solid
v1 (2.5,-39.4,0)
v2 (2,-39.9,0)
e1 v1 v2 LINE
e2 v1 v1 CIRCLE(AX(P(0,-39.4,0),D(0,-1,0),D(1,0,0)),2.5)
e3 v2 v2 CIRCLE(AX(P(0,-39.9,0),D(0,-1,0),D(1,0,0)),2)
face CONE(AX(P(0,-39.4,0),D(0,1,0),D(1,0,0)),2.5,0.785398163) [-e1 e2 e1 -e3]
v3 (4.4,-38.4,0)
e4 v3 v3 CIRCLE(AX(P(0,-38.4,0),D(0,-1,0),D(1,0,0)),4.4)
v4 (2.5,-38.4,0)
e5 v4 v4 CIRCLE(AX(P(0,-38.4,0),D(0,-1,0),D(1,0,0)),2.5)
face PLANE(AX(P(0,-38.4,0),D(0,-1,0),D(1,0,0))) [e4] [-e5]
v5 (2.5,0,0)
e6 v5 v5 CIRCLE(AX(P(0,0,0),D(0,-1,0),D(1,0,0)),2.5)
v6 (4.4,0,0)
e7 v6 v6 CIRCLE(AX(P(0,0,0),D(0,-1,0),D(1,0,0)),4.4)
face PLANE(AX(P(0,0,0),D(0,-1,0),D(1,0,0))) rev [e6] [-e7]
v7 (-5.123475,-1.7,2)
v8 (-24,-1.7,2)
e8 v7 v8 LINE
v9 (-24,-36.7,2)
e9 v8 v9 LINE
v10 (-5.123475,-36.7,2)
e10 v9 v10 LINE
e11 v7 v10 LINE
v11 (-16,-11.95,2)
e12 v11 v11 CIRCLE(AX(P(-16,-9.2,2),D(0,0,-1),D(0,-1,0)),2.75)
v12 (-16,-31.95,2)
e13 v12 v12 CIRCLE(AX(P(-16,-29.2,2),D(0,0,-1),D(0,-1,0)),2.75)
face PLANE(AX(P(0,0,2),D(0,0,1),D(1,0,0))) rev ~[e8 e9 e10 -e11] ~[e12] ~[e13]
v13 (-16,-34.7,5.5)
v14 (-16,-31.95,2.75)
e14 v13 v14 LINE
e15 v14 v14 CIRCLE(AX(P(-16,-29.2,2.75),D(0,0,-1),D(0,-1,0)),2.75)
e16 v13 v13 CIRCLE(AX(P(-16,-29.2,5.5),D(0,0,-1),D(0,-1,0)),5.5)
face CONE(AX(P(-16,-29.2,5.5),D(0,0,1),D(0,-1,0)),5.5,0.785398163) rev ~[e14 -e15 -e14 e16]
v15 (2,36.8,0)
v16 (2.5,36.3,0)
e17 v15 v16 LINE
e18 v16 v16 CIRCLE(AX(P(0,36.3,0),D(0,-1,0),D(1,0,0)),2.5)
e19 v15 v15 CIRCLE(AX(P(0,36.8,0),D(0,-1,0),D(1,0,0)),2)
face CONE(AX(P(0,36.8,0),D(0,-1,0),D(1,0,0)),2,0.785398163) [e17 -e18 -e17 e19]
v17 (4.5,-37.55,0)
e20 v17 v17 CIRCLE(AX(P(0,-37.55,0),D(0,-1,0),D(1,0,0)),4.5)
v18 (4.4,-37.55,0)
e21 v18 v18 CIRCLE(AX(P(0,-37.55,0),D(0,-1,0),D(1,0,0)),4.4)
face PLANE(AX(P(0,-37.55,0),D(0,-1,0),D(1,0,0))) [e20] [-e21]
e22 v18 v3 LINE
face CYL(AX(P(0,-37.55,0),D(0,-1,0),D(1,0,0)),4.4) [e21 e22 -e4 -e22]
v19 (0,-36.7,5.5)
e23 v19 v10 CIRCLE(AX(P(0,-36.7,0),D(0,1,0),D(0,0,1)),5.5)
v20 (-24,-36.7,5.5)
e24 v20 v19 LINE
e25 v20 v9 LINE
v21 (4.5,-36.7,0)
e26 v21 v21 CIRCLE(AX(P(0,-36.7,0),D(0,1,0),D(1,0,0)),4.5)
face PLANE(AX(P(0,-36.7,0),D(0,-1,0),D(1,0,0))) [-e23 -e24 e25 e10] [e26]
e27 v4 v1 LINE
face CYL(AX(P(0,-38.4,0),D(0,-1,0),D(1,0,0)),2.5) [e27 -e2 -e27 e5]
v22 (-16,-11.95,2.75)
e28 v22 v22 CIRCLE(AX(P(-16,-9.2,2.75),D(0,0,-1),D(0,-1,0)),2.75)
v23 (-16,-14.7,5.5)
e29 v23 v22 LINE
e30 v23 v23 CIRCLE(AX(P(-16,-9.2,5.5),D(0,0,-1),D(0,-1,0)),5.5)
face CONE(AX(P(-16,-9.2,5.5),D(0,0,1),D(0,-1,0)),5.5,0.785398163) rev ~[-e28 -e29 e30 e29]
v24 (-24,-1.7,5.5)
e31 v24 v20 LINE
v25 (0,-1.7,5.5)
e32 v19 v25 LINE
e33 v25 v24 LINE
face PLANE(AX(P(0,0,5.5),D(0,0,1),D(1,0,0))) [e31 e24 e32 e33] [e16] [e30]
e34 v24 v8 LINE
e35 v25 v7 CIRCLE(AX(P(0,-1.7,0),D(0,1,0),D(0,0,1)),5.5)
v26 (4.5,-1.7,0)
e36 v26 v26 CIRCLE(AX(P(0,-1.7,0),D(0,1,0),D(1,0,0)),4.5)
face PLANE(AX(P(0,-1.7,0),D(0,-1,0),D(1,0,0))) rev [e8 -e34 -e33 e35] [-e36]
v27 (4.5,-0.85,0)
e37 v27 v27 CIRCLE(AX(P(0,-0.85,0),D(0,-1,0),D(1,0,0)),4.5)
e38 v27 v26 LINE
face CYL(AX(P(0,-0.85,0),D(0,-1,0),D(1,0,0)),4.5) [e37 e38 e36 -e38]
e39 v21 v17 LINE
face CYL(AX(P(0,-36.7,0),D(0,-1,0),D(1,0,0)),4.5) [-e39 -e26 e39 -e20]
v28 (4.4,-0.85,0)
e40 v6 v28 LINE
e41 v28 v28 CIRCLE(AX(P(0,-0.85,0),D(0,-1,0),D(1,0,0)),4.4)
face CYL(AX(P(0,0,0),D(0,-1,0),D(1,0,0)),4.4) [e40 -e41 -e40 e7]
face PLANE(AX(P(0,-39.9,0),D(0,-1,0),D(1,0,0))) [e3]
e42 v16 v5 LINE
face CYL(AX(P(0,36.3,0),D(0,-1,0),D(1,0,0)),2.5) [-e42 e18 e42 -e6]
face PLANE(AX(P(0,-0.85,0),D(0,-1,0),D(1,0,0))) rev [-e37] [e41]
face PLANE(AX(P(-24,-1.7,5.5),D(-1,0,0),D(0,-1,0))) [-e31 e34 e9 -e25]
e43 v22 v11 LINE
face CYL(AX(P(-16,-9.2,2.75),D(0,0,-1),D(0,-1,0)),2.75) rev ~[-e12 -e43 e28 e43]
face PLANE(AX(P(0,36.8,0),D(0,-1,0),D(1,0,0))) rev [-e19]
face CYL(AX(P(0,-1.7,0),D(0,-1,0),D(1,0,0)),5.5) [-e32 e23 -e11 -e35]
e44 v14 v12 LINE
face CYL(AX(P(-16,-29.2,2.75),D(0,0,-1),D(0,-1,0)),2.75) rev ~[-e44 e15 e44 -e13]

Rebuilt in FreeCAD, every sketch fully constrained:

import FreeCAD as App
import Part
import Sketcher
from FreeCAD import Vector

doc = App.newDocument("Part")
body = doc.addObject("PartDesign::Body", "Body")

sketch1 = body.newObject("Sketcher::SketchObject", "Sketch")
sketch1.AttachmentSupport = (doc.getObject("XY_Plane"), [""])
sketch1.MapMode = "FlatFace"
sketch1.addGeometry([
    Part.LineSegment(Vector(0, 36.8, 0), Vector(0, -39.9, 0)),
    Part.LineSegment(Vector(0, -39.9, 0), Vector(2, -39.9, 0)),
    Part.LineSegment(Vector(2, -39.9, 0), Vector(2.5, -39.4, 0)),
    Part.LineSegment(Vector(2.5, -39.4, 0), Vector(2.5, -38.4, 0)),
    Part.LineSegment(Vector(2.5, -38.4, 0), Vector(4.4, -38.4, 0)),
    Part.LineSegment(Vector(4.4, -38.4, 0), Vector(4.4, -37.55, 0)),
    Part.LineSegment(Vector(4.4, -37.55, 0), Vector(4.5, -37.55, 0)),
    Part.LineSegment(Vector(4.5, -37.55, 0), Vector(4.5, -36.7, 0)),
    Part.LineSegment(Vector(4.5, -36.7, 0), Vector(5.5, -36.7, 0)),
    Part.LineSegment(Vector(5.5, -36.7, 0), Vector(5.5, -1.7, 0)),
    Part.LineSegment(Vector(5.5, -1.7, 0), Vector(4.5, -1.7, 0)),
    Part.LineSegment(Vector(4.5, -1.7, 0), Vector(4.5, -0.85, 0)),
    Part.LineSegment(Vector(4.5, -0.85, 0), Vector(4.4, -0.85, 0)),
    Part.LineSegment(Vector(4.4, -0.85, 0), Vector(4.4, 0, 0)),
    Part.LineSegment(Vector(4.4, 0, 0), Vector(2.5, 0, 0)),
    Part.LineSegment(Vector(2.5, 0, 0), Vector(2.5, 36.3, 0)),
    Part.LineSegment(Vector(2.5, 36.3, 0), Vector(2, 36.8, 0)),
    Part.LineSegment(Vector(2, 36.8, 0), Vector(0, 36.8, 0)),
], False)
sketch1.addConstraint([
    Sketcher.Constraint("Coincident", 0, 2, 1, 1),
    Sketcher.Constraint("Coincident", 1, 2, 2, 1),
    Sketcher.Constraint("Coincident", 2, 2, 3, 1),
    Sketcher.Constraint("Coincident", 3, 2, 4, 1),
    Sketcher.Constraint("Coincident", 4, 2, 5, 1),
    Sketcher.Constraint("Coincident", 5, 2, 6, 1),
    Sketcher.Constraint("Coincident", 6, 2, 7, 1),
    Sketcher.Constraint("Coincident", 7, 2, 8, 1),
    Sketcher.Constraint("Coincident", 8, 2, 9, 1),
    Sketcher.Constraint("Coincident", 9, 2, 10, 1),
    Sketcher.Constraint("Coincident", 10, 2, 11, 1),
    Sketcher.Constraint("Coincident", 11, 2, 12, 1),
    Sketcher.Constraint("Coincident", 12, 2, 13, 1),
    Sketcher.Constraint("Coincident", 13, 2, 14, 1),
    Sketcher.Constraint("Coincident", 14, 2, 15, 1),
    Sketcher.Constraint("Coincident", 15, 2, 16, 1),
    Sketcher.Constraint("Coincident", 16, 2, 17, 1),
    Sketcher.Constraint("Coincident", 17, 2, 0, 1),
    Sketcher.Constraint("Vertical", 0),
    Sketcher.Constraint("Horizontal", 1),
    Sketcher.Constraint("Vertical", 3),
    Sketcher.Constraint("Horizontal", 4),
    Sketcher.Constraint("Vertical", 5),
    Sketcher.Constraint("Horizontal", 6),
    Sketcher.Constraint("Vertical", 7),
    Sketcher.Constraint("Horizontal", 8),
    Sketcher.Constraint("Vertical", 9),
    Sketcher.Constraint("Horizontal", 10),
    Sketcher.Constraint("Vertical", 11),
    Sketcher.Constraint("Horizontal", 12),
    Sketcher.Constraint("Vertical", 13),
    Sketcher.Constraint("Horizontal", 14),
    Sketcher.Constraint("Vertical", 15),
    Sketcher.Constraint("Horizontal", 17),
    Sketcher.Constraint("PointOnObject", 0, 2, -2),
    Sketcher.Constraint("PointOnObject", 13, 2, -1),
    Sketcher.Constraint("Perpendicular", 2, 16),
    Sketcher.Constraint("Vertical", 7, 2, 10, 2),
    Sketcher.Constraint("Vertical", 5, 2, 12, 2),
    Sketcher.Constraint("Vertical", 3, 2, 14, 2),
    Sketcher.Constraint("Vertical", 1, 2, 16, 2),
    Sketcher.Constraint("Equal", 10, 3),
    Sketcher.Constraint("Equal", 5, 7),
    Sketcher.Constraint("Equal", 7, 11),
    Sketcher.Constraint("Equal", 11, 13),
    Sketcher.Constraint("Equal", 2, 16),
    Sketcher.Constraint("DistanceX", 1, 1, 1, 2, 2.0),
    Sketcher.Constraint("DistanceX", 8, 1, 8, 2, 1.0),
    Sketcher.Constraint("DistanceY", 9, 1, 9, 2, 35.0),
    Sketcher.Constraint("DistanceX", 4, 1, 4, 2, 1.9),
    Sketcher.Constraint("DistanceX", 6, 1, 6, 2, 0.1),
    Sketcher.Constraint("DistanceY", 0, 2, 0, 1, 76.7),
    Sketcher.Constraint("DistanceY", 15, 1, 15, 2, 36.3),
    Sketcher.Constraint("DistanceY", 10, 2, 15, 2, 38.0),
])
revolution = body.newObject("PartDesign::Revolution", "Revolution")
revolution.Profile = sketch1
revolution.ReferenceAxis = (sketch1, ["V_Axis"])
revolution.Angle = 360

sketch2 = body.newObject("Sketcher::SketchObject", "Sketch001")
sketch2.AttachmentSupport = (doc.getObject("XY_Plane"), [""])
sketch2.MapMode = "FlatFace"
sketch2.AttachmentOffset = App.Placement(Vector(0, 0, 5.5), App.Rotation())
sketch2.addGeometry([
    Part.LineSegment(Vector(-24, -2, 0), Vector(-24, -37, 0)),
    Part.LineSegment(Vector(-24, -37, 0), Vector(0, -37, 0)),
    Part.LineSegment(Vector(0, -37, 0), Vector(0, -2, 0)),
    Part.LineSegment(Vector(0, -2, 0), Vector(-24, -2, 0)),
], False)
sketch2.addConstraint([
    Sketcher.Constraint("Coincident", 0, 2, 1, 1),
    Sketcher.Constraint("Coincident", 1, 2, 2, 1),
    Sketcher.Constraint("Coincident", 2, 2, 3, 1),
    Sketcher.Constraint("Coincident", 3, 2, 0, 1),
    Sketcher.Constraint("Vertical", 0),
    Sketcher.Constraint("Horizontal", 1),
    Sketcher.Constraint("Vertical", 2),
    Sketcher.Constraint("Horizontal", 3),
    Sketcher.Constraint("PointOnObject", 1, 2, -2),
    Sketcher.Constraint("DistanceX", 1, 1, 1, 2, 24.0),
    Sketcher.Constraint("DistanceY", 0, 2, 0, 1, 35.0),
    Sketcher.Constraint("DistanceY", 0, 2, -1, 1, 36.7),
])
pad1 = body.newObject("PartDesign::Pad", "Pad")
pad1.Profile = sketch2
pad1.Length = 3.5
pad1.Reversed = True

sketch3 = body.newObject("Sketcher::SketchObject", "Sketch002")
sketch3.AttachmentSupport = (doc.getObject("XY_Plane"), [""])
sketch3.MapMode = "FlatFace"
sketch3.AttachmentOffset = App.Placement(Vector(0, 0, 5.5), App.Rotation())
sketch3.addGeometry(Part.Circle(Vector(-16, -9.2, 0), Vector(0, 0, 1), 2.8), False)
sketch3.addConstraint([
    Sketcher.Constraint("Diameter", 0, 5.5),
    Sketcher.Constraint("DistanceX", 0, 3, -1, 1, 16.0),
    Sketcher.Constraint("DistanceY", 0, 3, -1, 1, 9.2),
])
doc.recompute()
hole = body.newObject("PartDesign::Hole", "Hole")
hole.Profile = sketch3
hole.ThreadType = "None"
hole.Diameter = 5.5
hole.DepthType = "Dimension"
hole.Depth = 3.5
hole.DrillPoint = "Flat"
hole.HoleCutType = "Countersink"
hole.HoleCutDiameter = 11
hole.HoleCutCountersinkAngle = 90

sketch4 = body.newObject("Sketcher::SketchObject", "Sketch003")
sketch4.AttachmentSupport = (doc.getObject("XY_Plane"), [""])
sketch4.MapMode = "FlatFace"
sketch4.AttachmentOffset = App.Placement(Vector(0, 0, 5.5), App.Rotation())
sketch4.addGeometry(Part.Circle(Vector(-16, -29.2, 0), Vector(0, 0, 1), 2.8), False)
sketch4.addConstraint([
    Sketcher.Constraint("Diameter", 0, 5.5),
    Sketcher.Constraint("DistanceX", 0, 3, -1, 1, 16.0),
    Sketcher.Constraint("DistanceY", 0, 3, -1, 1, 29.2),
])
doc.recompute()
hole2 = body.newObject("PartDesign::Hole", "Hole001")
hole2.Profile = sketch4
hole2.ThreadType = "None"
hole2.Diameter = 5.5
hole2.DepthType = "Dimension"
hole2.Depth = 3.5
hole2.DrillPoint = "Flat"
hole2.HoleCutType = "Countersink"
hole2.HoleCutDiameter = 11
hole2.HoleCutCountersinkAngle = 90

doc.recompute()
